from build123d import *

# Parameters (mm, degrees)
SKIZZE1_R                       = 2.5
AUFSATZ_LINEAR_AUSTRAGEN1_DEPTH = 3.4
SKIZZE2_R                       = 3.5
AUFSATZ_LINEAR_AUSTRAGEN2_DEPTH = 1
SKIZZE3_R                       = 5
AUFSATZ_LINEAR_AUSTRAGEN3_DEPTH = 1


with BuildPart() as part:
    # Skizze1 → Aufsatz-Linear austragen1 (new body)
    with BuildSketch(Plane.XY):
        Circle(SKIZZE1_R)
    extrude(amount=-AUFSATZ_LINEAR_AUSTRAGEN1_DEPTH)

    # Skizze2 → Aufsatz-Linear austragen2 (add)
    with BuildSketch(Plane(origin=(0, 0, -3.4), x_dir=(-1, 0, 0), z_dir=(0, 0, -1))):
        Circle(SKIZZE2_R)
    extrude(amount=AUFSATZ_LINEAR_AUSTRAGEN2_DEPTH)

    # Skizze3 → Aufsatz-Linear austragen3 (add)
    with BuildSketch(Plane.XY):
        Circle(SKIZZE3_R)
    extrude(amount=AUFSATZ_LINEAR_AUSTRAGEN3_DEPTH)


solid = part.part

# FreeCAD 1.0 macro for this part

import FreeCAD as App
import Part
import Sketcher

doc = App.newDocument("Part")
body = doc.addObject("PartDesign::Body", "Body")

sketch1 = body.newObject("Sketcher::SketchObject", "Sketch")
sketch1.AttachmentSupport = (doc.getObject("XY_Plane"), [""])
sketch1.MapMode = "FlatFace"
sketch1.addGeometry(Part.Circle(App.Vector(0, 0, 0), App.Vector(0, 0, 1), 2.5), False)
sketch1.addConstraint([
    Sketcher.Constraint("Coincident", 0, 3, -1, 1),
    Sketcher.Constraint("Diameter", 0, 5.0),
])
pad1 = body.newObject("PartDesign::Pad", "Pad")
pad1.Profile = sketch1
pad1.Length = 3.4
pad1.Reversed = True

sketch2 = body.newObject("Sketcher::SketchObject", "Sketch001")
sketch2.AttachmentSupport = (doc.getObject("XY_Plane"), [""])
sketch2.MapMode = "FlatFace"
sketch2.AttachmentOffset = App.Placement(App.Vector(0, 0, -3.4), App.Rotation())
sketch2.addGeometry(Part.Circle(App.Vector(0, 0, 0), App.Vector(0, 0, 1), 3.5), False)
sketch2.addConstraint([
    Sketcher.Constraint("Coincident", 0, 3, -1, 1),
    Sketcher.Constraint("Diameter", 0, 7.0),
])
pad2 = body.newObject("PartDesign::Pad", "Pad001")
pad2.Profile = sketch2
pad2.Length = 1
pad2.Reversed = True

sketch3 = body.newObject("Sketcher::SketchObject", "Sketch002")
sketch3.AttachmentSupport = (doc.getObject("XY_Plane"), [""])
sketch3.MapMode = "FlatFace"
sketch3.addGeometry(Part.Circle(App.Vector(0, 0, 0), App.Vector(0, 0, 1), 5), False)
sketch3.addConstraint([
    Sketcher.Constraint("Coincident", 0, 3, -1, 1),
    Sketcher.Constraint("Diameter", 0, 10.0),
])
pad3 = body.newObject("PartDesign::Pad", "Pad002")
pad3.Profile = sketch3
pad3.Length = 1

doc.recompute()
